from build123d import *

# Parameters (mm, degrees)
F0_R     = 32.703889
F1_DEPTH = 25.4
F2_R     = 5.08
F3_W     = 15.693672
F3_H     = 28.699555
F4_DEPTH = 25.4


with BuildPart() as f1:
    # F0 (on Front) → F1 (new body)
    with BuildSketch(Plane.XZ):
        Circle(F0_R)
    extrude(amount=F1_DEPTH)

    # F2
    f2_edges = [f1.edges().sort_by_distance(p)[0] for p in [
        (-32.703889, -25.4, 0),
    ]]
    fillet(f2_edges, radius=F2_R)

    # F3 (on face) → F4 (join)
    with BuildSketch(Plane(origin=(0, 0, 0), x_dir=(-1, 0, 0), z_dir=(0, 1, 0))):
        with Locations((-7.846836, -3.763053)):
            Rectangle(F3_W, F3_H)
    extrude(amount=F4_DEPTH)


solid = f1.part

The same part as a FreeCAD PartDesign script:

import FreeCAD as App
import Part
import Sketcher
from FreeCAD import Vector
Q = App.Units.Quantity


def edges_at(feature, points):
    """Names of the edges that pass closest to the given points."""
    edges = feature.Shape.Edges
    near = lambda p: min(range(len(edges)), key=lambda i: edges[i].distToShape(Part.Vertex(*p))[0])
    return sorted({f"Edge{near(p) + 1}" for p in points})

doc = App.newDocument("Part")
body = doc.addObject("PartDesign::Body", "Body")

# Sketch on XZ plane
sketch1 = body.newObject("Sketcher::SketchObject", "Sketch")
sketch1.AttachmentSupport = (doc.getObject("XZ_Plane"), [""])
sketch1.MapMode = "FlatFace"
sketch1.addGeometry(Part.Circle(Vector(0, 0, 0), Vector(0, 0, 1), 33), False)
sketch1.addConstraint(Sketcher.Constraint("Coincident", 0, 3, -1, 1))
sketch1.addConstraint(Sketcher.Constraint("Diameter", 0, Q("65.407778 mm")))
pad1 = body.newObject("PartDesign::Pad", "Pad")
pad1.Profile = sketch1
pad1.Length = Q("1 in")
doc.recompute()

fillet = body.newObject("PartDesign::Fillet", "Fillet")
fillet.Base = (pad1, edges_at(pad1, [(-32.704, -25.4, 0)]))
fillet.Radius = Q("0.2 in")

# Sketch on XZ plane
sketch2 = body.newObject("Sketcher::SketchObject", "Sketch001")
sketch2.AttachmentSupport = (doc.getObject("XZ_Plane"), [""])
sketch2.MapMode = "FlatFace"
sketch2.addGeometry(Part.LineSegment(Vector(16, 11, 0), Vector(16, -18, 0)), False)
sketch2.addGeometry(Part.LineSegment(Vector(16, -18, 0), Vector(0, -18, 0)), False)
sketch2.addGeometry(Part.LineSegment(Vector(0, -18, 0), Vector(0, 11, 0)), False)
sketch2.addGeometry(Part.LineSegment(Vector(0, 11, 0), Vector(16, 11, 0)), False)
sketch2.addConstraint(Sketcher.Constraint("Coincident", 0, 2, 1, 1))
sketch2.addConstraint(Sketcher.Constraint("Coincident", 1, 2, 2, 1))
sketch2.addConstraint(Sketcher.Constraint("Coincident", 2, 2, 3, 1))
sketch2.addConstraint(Sketcher.Constraint("Coincident", 3, 2, 0, 1))
sketch2.addConstraint(Sketcher.Constraint("Vertical", 0))
sketch2.addConstraint(Sketcher.Constraint("Horizontal", 1))
sketch2.addConstraint(Sketcher.Constraint("Vertical", 2))
sketch2.addConstraint(Sketcher.Constraint("Horizontal", 3))
sketch2.addConstraint(Sketcher.Constraint("PointOnObject", 1, 2, -2))
sketch2.addConstraint(Sketcher.Constraint("DistanceY", -1, 1, 2, 2, Q("0.4168002 in")))
sketch2.addConstraint(Sketcher.Constraint("DistanceX", 1, 2, 1, 1, Q("15.693672 mm")))
sketch2.addConstraint(Sketcher.Constraint("DistanceY", 0, 2, 0, 1, Q("28.699555 mm")))
pad2 = body.newObject("PartDesign::Pad", "Pad001")
pad2.Profile = sketch2
pad2.Length = Q("1 in")
pad2.Reversed = True

doc.recompute()
